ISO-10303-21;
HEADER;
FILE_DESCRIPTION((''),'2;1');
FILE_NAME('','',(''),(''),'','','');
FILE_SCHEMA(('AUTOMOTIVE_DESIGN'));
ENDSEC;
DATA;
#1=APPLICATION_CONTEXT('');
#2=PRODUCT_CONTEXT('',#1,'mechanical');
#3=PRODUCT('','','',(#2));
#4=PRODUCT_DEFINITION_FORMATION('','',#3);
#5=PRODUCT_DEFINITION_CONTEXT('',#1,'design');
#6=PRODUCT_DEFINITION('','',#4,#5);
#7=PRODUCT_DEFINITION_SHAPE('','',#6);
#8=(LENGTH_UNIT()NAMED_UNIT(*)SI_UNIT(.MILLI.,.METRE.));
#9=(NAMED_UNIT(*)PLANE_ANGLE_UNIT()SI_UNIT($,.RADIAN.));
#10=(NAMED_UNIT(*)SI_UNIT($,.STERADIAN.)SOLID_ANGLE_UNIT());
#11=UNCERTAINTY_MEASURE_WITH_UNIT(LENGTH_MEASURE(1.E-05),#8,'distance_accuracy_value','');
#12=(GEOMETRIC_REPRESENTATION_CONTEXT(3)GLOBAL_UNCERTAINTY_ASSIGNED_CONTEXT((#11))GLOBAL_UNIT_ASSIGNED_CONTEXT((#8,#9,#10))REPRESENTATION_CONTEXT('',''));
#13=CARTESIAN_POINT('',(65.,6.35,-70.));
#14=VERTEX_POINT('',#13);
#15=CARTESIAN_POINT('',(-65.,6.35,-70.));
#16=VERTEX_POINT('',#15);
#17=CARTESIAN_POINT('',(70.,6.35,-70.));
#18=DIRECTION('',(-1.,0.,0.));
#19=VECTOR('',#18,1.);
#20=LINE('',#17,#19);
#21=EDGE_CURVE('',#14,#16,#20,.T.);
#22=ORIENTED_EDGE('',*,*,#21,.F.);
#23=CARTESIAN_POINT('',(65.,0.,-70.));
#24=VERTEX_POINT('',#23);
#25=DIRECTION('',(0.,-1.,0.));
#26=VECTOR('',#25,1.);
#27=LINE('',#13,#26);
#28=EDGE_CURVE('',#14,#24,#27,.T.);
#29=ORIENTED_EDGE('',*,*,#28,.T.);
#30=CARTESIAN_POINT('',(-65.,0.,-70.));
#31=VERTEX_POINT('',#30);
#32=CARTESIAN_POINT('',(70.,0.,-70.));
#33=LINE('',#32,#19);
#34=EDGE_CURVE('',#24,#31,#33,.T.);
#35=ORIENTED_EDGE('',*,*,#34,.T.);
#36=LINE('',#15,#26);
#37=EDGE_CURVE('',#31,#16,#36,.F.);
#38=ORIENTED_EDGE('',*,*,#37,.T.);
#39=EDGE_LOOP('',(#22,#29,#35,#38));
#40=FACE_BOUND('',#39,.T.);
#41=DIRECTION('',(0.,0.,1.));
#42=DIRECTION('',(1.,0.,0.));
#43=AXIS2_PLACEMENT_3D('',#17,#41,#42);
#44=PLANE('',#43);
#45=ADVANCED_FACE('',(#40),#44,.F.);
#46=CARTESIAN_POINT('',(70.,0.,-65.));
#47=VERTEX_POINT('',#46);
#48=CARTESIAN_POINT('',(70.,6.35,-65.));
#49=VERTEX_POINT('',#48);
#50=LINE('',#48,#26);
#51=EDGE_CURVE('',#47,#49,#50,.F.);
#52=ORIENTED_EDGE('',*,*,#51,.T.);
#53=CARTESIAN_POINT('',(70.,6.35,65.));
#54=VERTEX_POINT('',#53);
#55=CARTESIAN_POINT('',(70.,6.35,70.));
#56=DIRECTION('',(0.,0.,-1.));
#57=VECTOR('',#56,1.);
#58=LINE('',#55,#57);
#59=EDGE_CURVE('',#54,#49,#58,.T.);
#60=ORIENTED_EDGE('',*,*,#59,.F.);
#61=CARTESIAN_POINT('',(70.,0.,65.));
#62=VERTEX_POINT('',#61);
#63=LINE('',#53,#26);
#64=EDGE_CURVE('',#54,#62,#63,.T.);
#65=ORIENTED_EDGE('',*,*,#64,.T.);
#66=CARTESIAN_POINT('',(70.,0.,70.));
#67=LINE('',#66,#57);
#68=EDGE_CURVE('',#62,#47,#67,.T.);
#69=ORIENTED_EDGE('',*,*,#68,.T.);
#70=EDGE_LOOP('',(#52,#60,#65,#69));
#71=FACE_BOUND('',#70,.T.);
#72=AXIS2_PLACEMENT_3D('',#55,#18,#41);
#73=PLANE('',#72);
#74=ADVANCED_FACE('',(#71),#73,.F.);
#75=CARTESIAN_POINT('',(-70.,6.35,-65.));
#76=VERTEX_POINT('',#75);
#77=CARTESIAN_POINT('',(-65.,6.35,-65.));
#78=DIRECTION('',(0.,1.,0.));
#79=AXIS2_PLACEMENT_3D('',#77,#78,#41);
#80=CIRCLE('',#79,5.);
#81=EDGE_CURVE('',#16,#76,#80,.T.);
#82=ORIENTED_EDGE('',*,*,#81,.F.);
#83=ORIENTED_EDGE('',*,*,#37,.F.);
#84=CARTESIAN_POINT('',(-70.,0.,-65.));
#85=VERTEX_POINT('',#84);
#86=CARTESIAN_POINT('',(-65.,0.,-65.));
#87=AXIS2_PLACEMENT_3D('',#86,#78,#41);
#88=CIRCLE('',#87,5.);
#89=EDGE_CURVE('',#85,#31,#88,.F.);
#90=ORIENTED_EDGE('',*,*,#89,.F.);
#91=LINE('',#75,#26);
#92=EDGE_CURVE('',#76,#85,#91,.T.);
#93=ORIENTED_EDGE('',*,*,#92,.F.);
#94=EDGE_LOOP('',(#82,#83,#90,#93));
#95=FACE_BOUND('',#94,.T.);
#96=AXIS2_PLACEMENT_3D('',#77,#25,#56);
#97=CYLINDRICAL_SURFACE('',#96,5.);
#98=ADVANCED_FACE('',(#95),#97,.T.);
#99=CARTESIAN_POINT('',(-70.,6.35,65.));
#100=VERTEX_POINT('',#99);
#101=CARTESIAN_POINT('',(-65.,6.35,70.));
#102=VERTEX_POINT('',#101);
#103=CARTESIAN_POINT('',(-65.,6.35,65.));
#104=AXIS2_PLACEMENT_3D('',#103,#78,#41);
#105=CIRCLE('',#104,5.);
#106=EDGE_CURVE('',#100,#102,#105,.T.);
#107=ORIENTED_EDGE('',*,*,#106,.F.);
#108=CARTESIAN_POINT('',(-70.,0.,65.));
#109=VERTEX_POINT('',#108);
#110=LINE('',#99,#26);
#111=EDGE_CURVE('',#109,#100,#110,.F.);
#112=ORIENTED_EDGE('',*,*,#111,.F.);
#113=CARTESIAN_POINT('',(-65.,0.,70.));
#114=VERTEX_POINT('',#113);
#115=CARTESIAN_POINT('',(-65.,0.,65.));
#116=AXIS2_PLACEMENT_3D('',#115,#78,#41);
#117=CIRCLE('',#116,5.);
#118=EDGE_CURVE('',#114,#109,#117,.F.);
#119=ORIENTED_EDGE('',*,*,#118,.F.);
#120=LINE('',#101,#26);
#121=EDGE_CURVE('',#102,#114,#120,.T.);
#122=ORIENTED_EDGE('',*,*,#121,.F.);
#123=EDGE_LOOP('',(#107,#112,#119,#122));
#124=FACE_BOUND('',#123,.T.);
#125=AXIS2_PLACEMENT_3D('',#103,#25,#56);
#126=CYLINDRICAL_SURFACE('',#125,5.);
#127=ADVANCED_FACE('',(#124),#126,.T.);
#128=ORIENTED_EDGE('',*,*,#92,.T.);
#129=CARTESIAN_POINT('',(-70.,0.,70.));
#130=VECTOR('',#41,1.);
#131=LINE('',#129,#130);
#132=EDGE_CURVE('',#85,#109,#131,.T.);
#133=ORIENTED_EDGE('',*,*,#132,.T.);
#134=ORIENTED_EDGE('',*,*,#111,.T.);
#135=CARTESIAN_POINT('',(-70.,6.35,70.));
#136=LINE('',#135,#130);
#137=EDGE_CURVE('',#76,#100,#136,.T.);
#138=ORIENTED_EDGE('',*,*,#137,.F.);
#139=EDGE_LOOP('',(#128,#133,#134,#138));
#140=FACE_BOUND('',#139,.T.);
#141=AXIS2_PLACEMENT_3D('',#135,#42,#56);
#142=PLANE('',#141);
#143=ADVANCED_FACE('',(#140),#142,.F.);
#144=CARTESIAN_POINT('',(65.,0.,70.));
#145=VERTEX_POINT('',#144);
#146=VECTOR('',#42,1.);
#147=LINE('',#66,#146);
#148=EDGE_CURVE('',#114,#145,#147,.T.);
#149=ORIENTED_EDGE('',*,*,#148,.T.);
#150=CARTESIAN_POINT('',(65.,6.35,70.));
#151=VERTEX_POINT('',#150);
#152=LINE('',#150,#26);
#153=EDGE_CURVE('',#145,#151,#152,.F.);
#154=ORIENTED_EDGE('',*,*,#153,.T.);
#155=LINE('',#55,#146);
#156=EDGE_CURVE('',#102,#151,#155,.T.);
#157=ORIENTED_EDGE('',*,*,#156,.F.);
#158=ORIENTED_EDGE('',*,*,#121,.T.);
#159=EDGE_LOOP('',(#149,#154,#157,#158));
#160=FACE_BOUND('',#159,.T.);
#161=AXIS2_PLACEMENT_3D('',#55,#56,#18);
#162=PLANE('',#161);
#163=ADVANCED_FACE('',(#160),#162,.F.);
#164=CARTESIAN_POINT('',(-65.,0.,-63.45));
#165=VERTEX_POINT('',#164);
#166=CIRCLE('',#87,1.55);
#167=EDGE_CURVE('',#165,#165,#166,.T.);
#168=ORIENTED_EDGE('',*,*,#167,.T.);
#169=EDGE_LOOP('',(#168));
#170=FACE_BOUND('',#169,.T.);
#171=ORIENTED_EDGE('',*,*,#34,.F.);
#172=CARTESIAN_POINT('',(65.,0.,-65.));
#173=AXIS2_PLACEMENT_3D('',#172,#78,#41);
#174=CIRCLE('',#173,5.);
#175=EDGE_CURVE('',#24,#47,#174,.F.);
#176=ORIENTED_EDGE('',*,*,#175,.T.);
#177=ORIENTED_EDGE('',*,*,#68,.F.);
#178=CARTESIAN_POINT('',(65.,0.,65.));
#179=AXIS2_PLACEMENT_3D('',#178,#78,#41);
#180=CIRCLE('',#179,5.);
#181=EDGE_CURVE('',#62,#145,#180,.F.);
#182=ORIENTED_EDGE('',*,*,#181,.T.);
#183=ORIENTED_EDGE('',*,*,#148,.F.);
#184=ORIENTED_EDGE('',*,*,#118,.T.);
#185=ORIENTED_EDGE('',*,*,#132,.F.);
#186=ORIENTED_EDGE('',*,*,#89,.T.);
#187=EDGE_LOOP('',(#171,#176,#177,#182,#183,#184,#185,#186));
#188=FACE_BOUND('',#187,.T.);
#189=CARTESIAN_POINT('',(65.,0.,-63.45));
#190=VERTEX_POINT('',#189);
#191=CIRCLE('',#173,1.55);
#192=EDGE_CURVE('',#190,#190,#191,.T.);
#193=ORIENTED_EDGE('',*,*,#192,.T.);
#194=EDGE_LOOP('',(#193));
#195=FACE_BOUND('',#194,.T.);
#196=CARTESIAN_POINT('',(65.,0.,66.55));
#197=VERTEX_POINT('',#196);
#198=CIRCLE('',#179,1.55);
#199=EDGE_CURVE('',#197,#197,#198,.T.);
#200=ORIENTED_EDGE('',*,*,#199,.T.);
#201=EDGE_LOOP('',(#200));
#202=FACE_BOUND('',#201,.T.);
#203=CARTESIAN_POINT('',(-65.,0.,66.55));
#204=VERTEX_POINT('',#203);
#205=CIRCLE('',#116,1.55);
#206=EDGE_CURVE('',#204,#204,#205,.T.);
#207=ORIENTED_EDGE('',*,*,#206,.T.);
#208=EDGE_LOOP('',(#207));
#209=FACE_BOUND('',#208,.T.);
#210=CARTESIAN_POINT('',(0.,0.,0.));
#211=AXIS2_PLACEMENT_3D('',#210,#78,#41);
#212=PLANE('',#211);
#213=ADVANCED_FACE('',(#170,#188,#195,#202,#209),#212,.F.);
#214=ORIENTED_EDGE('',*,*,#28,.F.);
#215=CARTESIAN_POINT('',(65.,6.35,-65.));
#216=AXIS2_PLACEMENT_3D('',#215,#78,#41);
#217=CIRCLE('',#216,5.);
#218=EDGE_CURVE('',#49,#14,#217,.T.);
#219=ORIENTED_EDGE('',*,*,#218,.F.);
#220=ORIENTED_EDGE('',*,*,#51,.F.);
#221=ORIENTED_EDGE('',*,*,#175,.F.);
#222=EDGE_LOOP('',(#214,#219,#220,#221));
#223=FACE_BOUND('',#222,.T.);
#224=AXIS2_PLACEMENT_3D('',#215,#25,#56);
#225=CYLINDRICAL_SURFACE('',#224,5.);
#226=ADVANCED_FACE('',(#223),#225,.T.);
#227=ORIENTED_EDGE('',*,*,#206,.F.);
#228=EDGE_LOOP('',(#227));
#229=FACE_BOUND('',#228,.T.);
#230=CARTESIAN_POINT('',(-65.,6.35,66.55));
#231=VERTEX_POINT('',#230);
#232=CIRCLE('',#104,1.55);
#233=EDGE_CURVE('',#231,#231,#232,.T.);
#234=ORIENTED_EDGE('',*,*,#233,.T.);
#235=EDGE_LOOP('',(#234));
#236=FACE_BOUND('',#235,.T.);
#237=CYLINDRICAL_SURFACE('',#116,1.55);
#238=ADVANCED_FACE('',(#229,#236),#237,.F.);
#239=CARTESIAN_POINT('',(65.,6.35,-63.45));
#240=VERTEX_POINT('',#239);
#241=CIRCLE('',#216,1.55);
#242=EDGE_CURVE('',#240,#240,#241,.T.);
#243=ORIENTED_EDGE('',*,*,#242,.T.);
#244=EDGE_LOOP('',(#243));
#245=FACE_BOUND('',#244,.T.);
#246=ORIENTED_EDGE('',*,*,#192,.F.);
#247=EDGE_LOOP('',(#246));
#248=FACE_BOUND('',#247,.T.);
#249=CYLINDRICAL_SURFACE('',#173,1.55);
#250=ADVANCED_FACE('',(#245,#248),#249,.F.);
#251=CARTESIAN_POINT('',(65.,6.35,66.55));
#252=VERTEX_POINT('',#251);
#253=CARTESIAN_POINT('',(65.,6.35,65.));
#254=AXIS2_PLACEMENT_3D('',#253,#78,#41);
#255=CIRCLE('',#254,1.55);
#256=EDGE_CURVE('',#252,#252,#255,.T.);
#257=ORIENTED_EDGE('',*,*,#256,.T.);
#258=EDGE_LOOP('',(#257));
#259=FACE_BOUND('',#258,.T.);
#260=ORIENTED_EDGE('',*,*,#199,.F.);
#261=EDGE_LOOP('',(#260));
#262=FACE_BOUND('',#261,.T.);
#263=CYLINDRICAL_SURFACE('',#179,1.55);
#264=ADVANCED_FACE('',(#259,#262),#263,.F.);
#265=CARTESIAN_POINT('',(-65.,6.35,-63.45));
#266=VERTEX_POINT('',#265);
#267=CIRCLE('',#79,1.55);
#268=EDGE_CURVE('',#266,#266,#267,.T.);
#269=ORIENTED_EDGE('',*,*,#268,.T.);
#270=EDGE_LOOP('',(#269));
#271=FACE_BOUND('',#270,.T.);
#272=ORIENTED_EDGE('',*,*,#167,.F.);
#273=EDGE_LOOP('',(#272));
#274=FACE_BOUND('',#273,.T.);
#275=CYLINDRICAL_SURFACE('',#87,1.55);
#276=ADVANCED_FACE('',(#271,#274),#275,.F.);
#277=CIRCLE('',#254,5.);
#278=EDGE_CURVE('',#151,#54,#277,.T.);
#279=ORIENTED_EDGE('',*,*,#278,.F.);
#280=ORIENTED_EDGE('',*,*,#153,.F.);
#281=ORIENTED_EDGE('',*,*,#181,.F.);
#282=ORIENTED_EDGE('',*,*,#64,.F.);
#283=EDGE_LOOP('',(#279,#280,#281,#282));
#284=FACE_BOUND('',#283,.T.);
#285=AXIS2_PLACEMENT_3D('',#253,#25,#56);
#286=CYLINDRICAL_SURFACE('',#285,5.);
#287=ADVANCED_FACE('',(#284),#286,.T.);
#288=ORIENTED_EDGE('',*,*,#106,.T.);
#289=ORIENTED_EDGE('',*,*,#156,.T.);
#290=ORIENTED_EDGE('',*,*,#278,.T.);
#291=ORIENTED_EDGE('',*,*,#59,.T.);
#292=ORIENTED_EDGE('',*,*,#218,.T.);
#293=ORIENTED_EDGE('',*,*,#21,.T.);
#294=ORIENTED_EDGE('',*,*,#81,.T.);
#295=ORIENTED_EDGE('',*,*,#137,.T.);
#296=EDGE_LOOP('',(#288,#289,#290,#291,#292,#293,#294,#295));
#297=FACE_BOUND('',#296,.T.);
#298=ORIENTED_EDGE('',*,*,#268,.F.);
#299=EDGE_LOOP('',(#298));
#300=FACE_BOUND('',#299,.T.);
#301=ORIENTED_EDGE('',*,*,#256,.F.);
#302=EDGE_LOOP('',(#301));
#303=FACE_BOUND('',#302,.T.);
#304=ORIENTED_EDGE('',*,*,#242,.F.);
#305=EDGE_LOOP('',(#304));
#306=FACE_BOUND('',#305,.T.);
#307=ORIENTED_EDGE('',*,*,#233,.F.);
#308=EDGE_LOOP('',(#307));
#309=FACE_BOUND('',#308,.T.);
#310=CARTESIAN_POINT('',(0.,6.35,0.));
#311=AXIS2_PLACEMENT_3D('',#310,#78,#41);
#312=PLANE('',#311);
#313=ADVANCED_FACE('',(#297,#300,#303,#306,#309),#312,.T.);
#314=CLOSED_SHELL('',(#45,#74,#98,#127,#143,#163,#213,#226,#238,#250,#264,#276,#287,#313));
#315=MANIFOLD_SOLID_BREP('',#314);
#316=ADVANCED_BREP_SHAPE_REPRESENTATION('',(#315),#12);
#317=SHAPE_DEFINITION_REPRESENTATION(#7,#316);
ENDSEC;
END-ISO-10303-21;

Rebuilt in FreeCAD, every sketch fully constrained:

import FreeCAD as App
import Part
import Sketcher
from FreeCAD import Vector
Q = App.Units.Quantity


def edges_at(feature, points):
    """Names of the edges that pass closest to the given points."""
    edges = feature.Shape.Edges
    near = lambda p: min(range(len(edges)), key=lambda i: edges[i].distToShape(Part.Vertex(*p))[0])
    return sorted({f"Edge{near(p) + 1}" for p in points})


def add_polygon(sketch, points):
    """Adds a closed chain of lines whose ends are joined by coincident constraints."""
    first, n = sketch.GeometryCount, len(points)
    for a, b in zip(points, points[1:] + points[:1]):
        sketch.addGeometry(Part.LineSegment(App.Vector(*a, 0), App.Vector(*b, 0)), False)
    for i in range(n):
        sketch.addConstraint(Sketcher.Constraint("Coincident", first + i, 2, first + (i + 1) % n, 1))

doc = App.newDocument("Part")
body = doc.addObject("PartDesign::Body", "Body")

sketch1 = body.newObject("Sketcher::SketchObject", "Sketch")
sketch1.AttachmentSupport = (doc.getObject("XZ_Plane"), [""])
sketch1.MapMode = "FlatFace"
add_polygon(sketch1, [(-70, -70), (-70, 70), (70, 70), (70, -70)])
sketch1.addConstraint([
    Sketcher.Constraint("Vertical", 0),
    Sketcher.Constraint("Horizontal", 1),
    Sketcher.Constraint("Vertical", 2),
    Sketcher.Constraint("Horizontal", 3),
    Sketcher.Constraint("Symmetric", 0, 2, 2, 2, -1, 1),
    Sketcher.Constraint("Equal", 3, 0),
    Sketcher.Constraint("DistanceX", 1, 1, 1, 2, Q("140 mm")),
])
pad1 = body.newObject("PartDesign::Pad", "Pad")
pad1.Profile = sketch1
pad1.Length = 6.35
pad1.Reversed = True
doc.recompute()

fillet = body.newObject("PartDesign::Fillet", "Fillet")
fillet.Base = (pad1, edges_at(pad1, [
    (-70, 3.175, -70),
    (70, 3.175, -70),
    (70, 3.175, 70),
    (-70, 3.175, 70),
]))
fillet.Radius = 5

sketch2 = body.newObject("Sketcher::SketchObject", "Sketch001")
sketch2.AttachmentSupport = (doc.getObject("XZ_Plane"), [""])
sketch2.MapMode = "FlatFace"
sketch2.AttachmentOffset = App.Placement(Vector(0, 0, -6.35), App.Rotation())
sketch2.addGeometry([
    Part.Circle(Vector(-65, 65, 0), Vector(0, 0, 1), 1.6),
    Part.Circle(Vector(65, 65, 0), Vector(0, 0, 1), 1.6),
    Part.Circle(Vector(65, -65, 0), Vector(0, 0, 1), 1.6),
    Part.Circle(Vector(-65, -65, 0), Vector(0, 0, 1), 1.6),
], False)
sketch2.addConstraint([
    Sketcher.Constraint("Equal", 0, 1),
    Sketcher.Constraint("Equal", 1, 2),
    Sketcher.Constraint("Equal", 2, 3),
    Sketcher.Constraint("Symmetric", 0, 3, 2, 3, -1, 1),
    Sketcher.Constraint("Symmetric", 1, 3, 3, 3, -1, 1),
    Sketcher.Constraint("Symmetric", 0, 3, 1, 3, -2),
    Sketcher.Constraint("Diameter", 0, Q("3.1 mm")),
    Sketcher.Constraint("DistanceX", 0, 3, -1, 1, Q("65 mm")),
    Sketcher.Constraint("DistanceY", -1, 1, 0, 3, Q("65 mm")),
])
pocket1 = body.newObject("PartDesign::Pocket", "Pocket")
pocket1.Profile = sketch2
pocket1.Type = "ThroughAll"
pocket1.Reversed = True

doc.recompute()
